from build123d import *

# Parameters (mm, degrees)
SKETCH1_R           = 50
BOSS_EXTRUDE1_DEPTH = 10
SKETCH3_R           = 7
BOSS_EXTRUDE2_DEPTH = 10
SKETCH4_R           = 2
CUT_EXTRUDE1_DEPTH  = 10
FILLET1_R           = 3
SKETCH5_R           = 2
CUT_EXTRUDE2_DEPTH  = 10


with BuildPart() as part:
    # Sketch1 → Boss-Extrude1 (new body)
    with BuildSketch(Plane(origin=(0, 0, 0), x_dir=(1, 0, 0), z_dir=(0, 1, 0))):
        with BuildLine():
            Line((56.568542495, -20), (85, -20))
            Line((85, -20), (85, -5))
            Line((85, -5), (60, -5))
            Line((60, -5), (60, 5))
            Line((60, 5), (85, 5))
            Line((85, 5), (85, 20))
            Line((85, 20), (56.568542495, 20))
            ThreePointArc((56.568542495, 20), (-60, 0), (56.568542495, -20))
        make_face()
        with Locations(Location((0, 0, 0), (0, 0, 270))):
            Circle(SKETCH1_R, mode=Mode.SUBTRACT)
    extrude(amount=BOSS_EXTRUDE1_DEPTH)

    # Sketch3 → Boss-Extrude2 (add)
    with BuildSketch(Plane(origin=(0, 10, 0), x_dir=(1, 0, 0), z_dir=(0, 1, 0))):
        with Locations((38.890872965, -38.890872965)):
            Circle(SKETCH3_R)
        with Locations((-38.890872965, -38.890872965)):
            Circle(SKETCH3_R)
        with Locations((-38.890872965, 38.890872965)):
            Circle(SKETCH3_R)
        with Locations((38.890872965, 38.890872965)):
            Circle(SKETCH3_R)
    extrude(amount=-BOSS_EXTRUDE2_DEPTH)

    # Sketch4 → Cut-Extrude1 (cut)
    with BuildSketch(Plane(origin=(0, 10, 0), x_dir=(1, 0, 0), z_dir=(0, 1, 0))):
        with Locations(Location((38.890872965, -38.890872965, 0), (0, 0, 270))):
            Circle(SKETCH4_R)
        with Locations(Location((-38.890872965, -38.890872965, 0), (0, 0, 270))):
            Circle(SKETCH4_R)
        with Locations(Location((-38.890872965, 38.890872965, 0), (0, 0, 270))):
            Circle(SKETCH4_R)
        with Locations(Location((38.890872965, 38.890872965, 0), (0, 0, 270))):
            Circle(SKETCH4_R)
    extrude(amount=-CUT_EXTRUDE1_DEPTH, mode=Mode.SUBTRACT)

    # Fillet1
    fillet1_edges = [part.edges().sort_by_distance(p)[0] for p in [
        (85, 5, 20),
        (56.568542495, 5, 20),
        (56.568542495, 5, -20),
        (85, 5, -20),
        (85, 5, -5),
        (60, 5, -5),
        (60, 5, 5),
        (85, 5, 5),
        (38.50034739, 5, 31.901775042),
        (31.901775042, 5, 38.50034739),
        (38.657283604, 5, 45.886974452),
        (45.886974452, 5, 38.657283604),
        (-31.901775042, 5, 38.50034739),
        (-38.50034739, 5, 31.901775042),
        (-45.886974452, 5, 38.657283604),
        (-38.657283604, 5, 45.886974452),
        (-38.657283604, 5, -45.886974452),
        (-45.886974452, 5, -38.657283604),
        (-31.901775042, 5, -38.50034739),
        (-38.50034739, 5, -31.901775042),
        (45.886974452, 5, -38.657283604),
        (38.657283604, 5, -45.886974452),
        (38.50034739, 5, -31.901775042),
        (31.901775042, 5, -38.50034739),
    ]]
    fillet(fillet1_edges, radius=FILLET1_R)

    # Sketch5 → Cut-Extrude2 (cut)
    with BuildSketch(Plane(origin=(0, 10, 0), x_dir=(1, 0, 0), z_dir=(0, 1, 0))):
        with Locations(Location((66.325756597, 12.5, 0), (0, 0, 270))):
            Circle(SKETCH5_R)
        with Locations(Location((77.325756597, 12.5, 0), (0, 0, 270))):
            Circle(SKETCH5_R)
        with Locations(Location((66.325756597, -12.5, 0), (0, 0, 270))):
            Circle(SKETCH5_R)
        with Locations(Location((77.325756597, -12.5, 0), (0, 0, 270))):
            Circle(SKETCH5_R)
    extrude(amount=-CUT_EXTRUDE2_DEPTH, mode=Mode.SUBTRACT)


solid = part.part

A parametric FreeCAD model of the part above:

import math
import FreeCAD as App
import Part
import Sketcher

V = App.Vector


def edges_at(feature, points):
    """Names of the edges that pass closest to the given points."""
    edges = feature.Shape.Edges
    near = lambda p: min(range(len(edges)), key=lambda i: edges[i].distToShape(Part.Vertex(*p))[0])
    return sorted({f"Edge{near(p) + 1}" for p in points})

doc = App.newDocument("Part")
body = doc.addObject("PartDesign::Body", "Body")

# Sketch on XZ plane
sketch1 = body.newObject("Sketcher::SketchObject", "Sketch")
sketch1.AttachmentSupport = (doc.getObject("XZ_Plane"), [""])
sketch1.MapMode = "FlatFace"
sketch1.addGeometry(Part.LineSegment(V(57, 20, 0), V(85, 20, 0)), False)
sketch1.addGeometry(Part.LineSegment(V(85, 20, 0), V(85, 5, 0)), False)
sketch1.addGeometry(Part.LineSegment(V(85, 5, 0), V(60, 5, 0)), False)
sketch1.addGeometry(Part.LineSegment(V(60, 5, 0), V(60, -5, 0)), False)
sketch1.addGeometry(Part.LineSegment(V(60, -5, 0), V(85, -5, 0)), False)
sketch1.addGeometry(Part.LineSegment(V(85, -5, 0), V(85, -20, 0)), False)
sketch1.addGeometry(Part.LineSegment(V(85, -20, 0), V(57, -20, 0)), False)
sketch1.addGeometry(Part.ArcOfCircle(Part.Circle(V(0, 0, 0), V(0, 0, 1), 60), math.radians(19), math.radians(341)), False)
sketch1.addGeometry(Part.Circle(V(0, 0, 0), V(0, 0, 1), 50), False)
sketch1.addConstraint(Sketcher.Constraint("Coincident", 0, 2, 1, 1))
sketch1.addConstraint(Sketcher.Constraint("Coincident", 1, 2, 2, 1))
sketch1.addConstraint(Sketcher.Constraint("Coincident", 2, 2, 3, 1))
sketch1.addConstraint(Sketcher.Constraint("Coincident", 3, 2, 4, 1))
sketch1.addConstraint(Sketcher.Constraint("Coincident", 4, 2, 5, 1))
sketch1.addConstraint(Sketcher.Constraint("Coincident", 5, 2, 6, 1))
sketch1.addConstraint(Sketcher.Constraint("Coincident", 6, 2, 7, 2))
sketch1.addConstraint(Sketcher.Constraint("Coincident", 7, 1, 0, 1))
sketch1.addConstraint(Sketcher.Constraint("Horizontal", 0))
sketch1.addConstraint(Sketcher.Constraint("Vertical", 1))
sketch1.addConstraint(Sketcher.Constraint("Horizontal", 2))
sketch1.addConstraint(Sketcher.Constraint("Vertical", 3))
sketch1.addConstraint(Sketcher.Constraint("Horizontal", 4))
sketch1.addConstraint(Sketcher.Constraint("Vertical", 5))
sketch1.addConstraint(Sketcher.Constraint("Horizontal", 6))
sketch1.addConstraint(Sketcher.Constraint("Coincident", 7, 3, -1, 1))
sketch1.addConstraint(Sketcher.Constraint("Coincident", 8, 3, -1, 1))
sketch1.addConstraint(Sketcher.Constraint("Symmetric", 1, 2, 4, 2, -1))
sketch1.addConstraint(Sketcher.Constraint("Vertical", 6, 2, 7, 1))
sketch1.addConstraint(Sketcher.Constraint("Diameter", 8, 100.0))
sketch1.addConstraint(Sketcher.Constraint("Radius", 7, 60.0))
sketch1.addConstraint(Sketcher.Constraint("DistanceX", 2, 2, 2, 1, 25.0))
sketch1.addConstraint(Sketcher.Constraint("DistanceY", 1, 2, 1, 1, 15.0))
sketch1.addConstraint(Sketcher.Constraint("DistanceY", 3, 2, 3, 1, 10.0))
sketch1.addConstraint(Sketcher.Constraint("DistanceX", -1, 1, 0, 2, 85.0))
pad1 = body.newObject("PartDesign::Pad", "Pad")
pad1.Profile = sketch1
pad1.Length = 10
pad1.Reversed = True

# Sketch on XZ plane
sketch2 = body.newObject("Sketcher::SketchObject", "Sketch001")
sketch2.AttachmentSupport = (doc.getObject("XZ_Plane"), [""])
sketch2.MapMode = "FlatFace"
sketch2.AttachmentOffset = App.Placement(V(0, 0, -10), App.Rotation())
sketch2.addGeometry(Part.Circle(V(39, 39, 0), V(0, 0, 1), 7), False)
sketch2.addGeometry(Part.Circle(V(-39, 39, 0), V(0, 0, 1), 7), False)
sketch2.addGeometry(Part.Circle(V(-39, -39, 0), V(0, 0, 1), 7), False)
sketch2.addGeometry(Part.Circle(V(39, -39, 0), V(0, 0, 1), 7), False)
sketch2.addConstraint(Sketcher.Constraint("Equal", 0, 1))
sketch2.addConstraint(Sketcher.Constraint("Equal", 1, 2))
sketch2.addConstraint(Sketcher.Constraint("Equal", 2, 3))
sketch2.addConstraint(Sketcher.Constraint("Symmetric", 0, 3, 2, 3, -1, 1))
sketch2.addConstraint(Sketcher.Constraint("Symmetric", 1, 3, 3, 3, -1, 1))
sketch2.addConstraint(Sketcher.Constraint("Symmetric", 0, 3, 1, 3, -2))
sketch2.addConstraint(Sketcher.Constraint("Diameter", 0, 14.0))
sketch2.addConstraint(Sketcher.Constraint("DistanceX", -1, 1, 0, 3, 38.890873))
sketch2.addConstraint(Sketcher.Constraint("DistanceY", -1, 1, 0, 3, 38.890873))
pad2 = body.newObject("PartDesign::Pad", "Pad001")
pad2.Profile = sketch2
pad2.Length = 10

# Sketch on XZ plane
sketch3 = body.newObject("Sketcher::SketchObject", "Sketch002")
sketch3.AttachmentSupport = (doc.getObject("XZ_Plane"), [""])
sketch3.MapMode = "FlatFace"
sketch3.AttachmentOffset = App.Placement(V(0, 0, -10), App.Rotation())
sketch3.addGeometry(Part.Circle(V(38.9, 38.9, 0), V(0, 0, 1), 2), False)
sketch3.addGeometry(Part.Circle(V(-38.9, 38.9, 0), V(0, 0, 1), 2), False)
sketch3.addGeometry(Part.Circle(V(-38.9, -38.9, 0), V(0, 0, 1), 2), False)
sketch3.addGeometry(Part.Circle(V(38.9, -38.9, 0), V(0, 0, 1), 2), False)
sketch3.addConstraint(Sketcher.Constraint("Equal", 0, 1))
sketch3.addConstraint(Sketcher.Constraint("Equal", 1, 2))
sketch3.addConstraint(Sketcher.Constraint("Equal", 2, 3))
sketch3.addConstraint(Sketcher.Constraint("Symmetric", 0, 3, 2, 3, -1, 1))
sketch3.addConstraint(Sketcher.Constraint("Symmetric", 1, 3, 3, 3, -1, 1))
sketch3.addConstraint(Sketcher.Constraint("Symmetric", 0, 3, 1, 3, -2))
sketch3.addConstraint(Sketcher.Constraint("Diameter", 0, 4.0))
sketch3.addConstraint(Sketcher.Constraint("DistanceX", -1, 1, 0, 3, 38.890873))
sketch3.addConstraint(Sketcher.Constraint("DistanceY", -1, 1, 0, 3, 38.890873))
pocket1 = body.newObject("PartDesign::Pocket", "Pocket")
pocket1.Profile = sketch3
pocket1.Length = 10
pocket1.Reversed = True
doc.recompute()

fillet = body.newObject("PartDesign::Fillet", "Fillet")
fillet.Base = (pocket1, edges_at(pocket1, [
    (85, 5, 20),
    (56.569, 5, 20),
    (56.569, 5, -20),
    (85, 5, -20),
    (85, 5, -5),
    (60, 5, -5),
    (60, 5, 5),
    (85, 5, 5),
    (38.5, 5, 31.902),
    (31.902, 5, 38.5),
    (38.657, 5, 45.887),
    (45.887, 5, 38.657),
    (-31.902, 5, 38.5),
    (-38.5, 5, 31.902),
    (-45.887, 5, 38.657),
    (-38.657, 5, 45.887),
    (-38.657, 5, -45.887),
    (-45.887, 5, -38.657),
    (-31.902, 5, -38.5),
    (-38.5, 5, -31.902),
    (45.887, 5, -38.657),
    (38.657, 5, -45.887),
    (38.5, 5, -31.902),
    (31.902, 5, -38.5),
]))
fillet.Radius = 3

# Sketch on XZ plane
sketch4 = body.newObject("Sketcher::SketchObject", "Sketch003")
sketch4.AttachmentSupport = (doc.getObject("XZ_Plane"), [""])
sketch4.MapMode = "FlatFace"
sketch4.AttachmentOffset = App.Placement(V(0, 0, -10), App.Rotation())
sketch4.addGeometry(Part.Circle(V(66.3, -12.5, 0), V(0, 0, 1), 2), False)
sketch4.addGeometry(Part.Circle(V(77.3, -12.5, 0), V(0, 0, 1), 2), False)
sketch4.addGeometry(Part.Circle(V(66.3, 12.5, 0), V(0, 0, 1), 2), False)
sketch4.addGeometry(Part.Circle(V(77.3, 12.5, 0), V(0, 0, 1), 2), False)
sketch4.addConstraint(Sketcher.Constraint("Equal", 0, 1))
sketch4.addConstraint(Sketcher.Constraint("Equal", 1, 2))
sketch4.addConstraint(Sketcher.Constraint("Equal", 2, 3))
sketch4.addConstraint(Sketcher.Constraint("Symmetric", 0, 3, 2, 3, -1))
sketch4.addConstraint(Sketcher.Constraint("Symmetric", 1, 3, 3, 3, -1))
sketch4.addConstraint(Sketcher.Constraint("Horizontal", 0, 3, 1, 3))
sketch4.addConstraint(Sketcher.Constraint("Diameter", 0, 4.0))
sketch4.addConstraint(Sketcher.Constraint("DistanceX", 0, 3, 1, 3, 11.0))
sketch4.addConstraint(Sketcher.Constraint("DistanceY", 0, 3, 2, 3, 25.0))
sketch4.addConstraint(Sketcher.Constraint("DistanceX", -1, 1, 0, 3, 66.325757))
pocket2 = body.newObject("PartDesign::Pocket", "Pocket001")
pocket2.Profile = sketch4
pocket2.Length = 10
pocket2.Reversed = True

doc.recompute()
